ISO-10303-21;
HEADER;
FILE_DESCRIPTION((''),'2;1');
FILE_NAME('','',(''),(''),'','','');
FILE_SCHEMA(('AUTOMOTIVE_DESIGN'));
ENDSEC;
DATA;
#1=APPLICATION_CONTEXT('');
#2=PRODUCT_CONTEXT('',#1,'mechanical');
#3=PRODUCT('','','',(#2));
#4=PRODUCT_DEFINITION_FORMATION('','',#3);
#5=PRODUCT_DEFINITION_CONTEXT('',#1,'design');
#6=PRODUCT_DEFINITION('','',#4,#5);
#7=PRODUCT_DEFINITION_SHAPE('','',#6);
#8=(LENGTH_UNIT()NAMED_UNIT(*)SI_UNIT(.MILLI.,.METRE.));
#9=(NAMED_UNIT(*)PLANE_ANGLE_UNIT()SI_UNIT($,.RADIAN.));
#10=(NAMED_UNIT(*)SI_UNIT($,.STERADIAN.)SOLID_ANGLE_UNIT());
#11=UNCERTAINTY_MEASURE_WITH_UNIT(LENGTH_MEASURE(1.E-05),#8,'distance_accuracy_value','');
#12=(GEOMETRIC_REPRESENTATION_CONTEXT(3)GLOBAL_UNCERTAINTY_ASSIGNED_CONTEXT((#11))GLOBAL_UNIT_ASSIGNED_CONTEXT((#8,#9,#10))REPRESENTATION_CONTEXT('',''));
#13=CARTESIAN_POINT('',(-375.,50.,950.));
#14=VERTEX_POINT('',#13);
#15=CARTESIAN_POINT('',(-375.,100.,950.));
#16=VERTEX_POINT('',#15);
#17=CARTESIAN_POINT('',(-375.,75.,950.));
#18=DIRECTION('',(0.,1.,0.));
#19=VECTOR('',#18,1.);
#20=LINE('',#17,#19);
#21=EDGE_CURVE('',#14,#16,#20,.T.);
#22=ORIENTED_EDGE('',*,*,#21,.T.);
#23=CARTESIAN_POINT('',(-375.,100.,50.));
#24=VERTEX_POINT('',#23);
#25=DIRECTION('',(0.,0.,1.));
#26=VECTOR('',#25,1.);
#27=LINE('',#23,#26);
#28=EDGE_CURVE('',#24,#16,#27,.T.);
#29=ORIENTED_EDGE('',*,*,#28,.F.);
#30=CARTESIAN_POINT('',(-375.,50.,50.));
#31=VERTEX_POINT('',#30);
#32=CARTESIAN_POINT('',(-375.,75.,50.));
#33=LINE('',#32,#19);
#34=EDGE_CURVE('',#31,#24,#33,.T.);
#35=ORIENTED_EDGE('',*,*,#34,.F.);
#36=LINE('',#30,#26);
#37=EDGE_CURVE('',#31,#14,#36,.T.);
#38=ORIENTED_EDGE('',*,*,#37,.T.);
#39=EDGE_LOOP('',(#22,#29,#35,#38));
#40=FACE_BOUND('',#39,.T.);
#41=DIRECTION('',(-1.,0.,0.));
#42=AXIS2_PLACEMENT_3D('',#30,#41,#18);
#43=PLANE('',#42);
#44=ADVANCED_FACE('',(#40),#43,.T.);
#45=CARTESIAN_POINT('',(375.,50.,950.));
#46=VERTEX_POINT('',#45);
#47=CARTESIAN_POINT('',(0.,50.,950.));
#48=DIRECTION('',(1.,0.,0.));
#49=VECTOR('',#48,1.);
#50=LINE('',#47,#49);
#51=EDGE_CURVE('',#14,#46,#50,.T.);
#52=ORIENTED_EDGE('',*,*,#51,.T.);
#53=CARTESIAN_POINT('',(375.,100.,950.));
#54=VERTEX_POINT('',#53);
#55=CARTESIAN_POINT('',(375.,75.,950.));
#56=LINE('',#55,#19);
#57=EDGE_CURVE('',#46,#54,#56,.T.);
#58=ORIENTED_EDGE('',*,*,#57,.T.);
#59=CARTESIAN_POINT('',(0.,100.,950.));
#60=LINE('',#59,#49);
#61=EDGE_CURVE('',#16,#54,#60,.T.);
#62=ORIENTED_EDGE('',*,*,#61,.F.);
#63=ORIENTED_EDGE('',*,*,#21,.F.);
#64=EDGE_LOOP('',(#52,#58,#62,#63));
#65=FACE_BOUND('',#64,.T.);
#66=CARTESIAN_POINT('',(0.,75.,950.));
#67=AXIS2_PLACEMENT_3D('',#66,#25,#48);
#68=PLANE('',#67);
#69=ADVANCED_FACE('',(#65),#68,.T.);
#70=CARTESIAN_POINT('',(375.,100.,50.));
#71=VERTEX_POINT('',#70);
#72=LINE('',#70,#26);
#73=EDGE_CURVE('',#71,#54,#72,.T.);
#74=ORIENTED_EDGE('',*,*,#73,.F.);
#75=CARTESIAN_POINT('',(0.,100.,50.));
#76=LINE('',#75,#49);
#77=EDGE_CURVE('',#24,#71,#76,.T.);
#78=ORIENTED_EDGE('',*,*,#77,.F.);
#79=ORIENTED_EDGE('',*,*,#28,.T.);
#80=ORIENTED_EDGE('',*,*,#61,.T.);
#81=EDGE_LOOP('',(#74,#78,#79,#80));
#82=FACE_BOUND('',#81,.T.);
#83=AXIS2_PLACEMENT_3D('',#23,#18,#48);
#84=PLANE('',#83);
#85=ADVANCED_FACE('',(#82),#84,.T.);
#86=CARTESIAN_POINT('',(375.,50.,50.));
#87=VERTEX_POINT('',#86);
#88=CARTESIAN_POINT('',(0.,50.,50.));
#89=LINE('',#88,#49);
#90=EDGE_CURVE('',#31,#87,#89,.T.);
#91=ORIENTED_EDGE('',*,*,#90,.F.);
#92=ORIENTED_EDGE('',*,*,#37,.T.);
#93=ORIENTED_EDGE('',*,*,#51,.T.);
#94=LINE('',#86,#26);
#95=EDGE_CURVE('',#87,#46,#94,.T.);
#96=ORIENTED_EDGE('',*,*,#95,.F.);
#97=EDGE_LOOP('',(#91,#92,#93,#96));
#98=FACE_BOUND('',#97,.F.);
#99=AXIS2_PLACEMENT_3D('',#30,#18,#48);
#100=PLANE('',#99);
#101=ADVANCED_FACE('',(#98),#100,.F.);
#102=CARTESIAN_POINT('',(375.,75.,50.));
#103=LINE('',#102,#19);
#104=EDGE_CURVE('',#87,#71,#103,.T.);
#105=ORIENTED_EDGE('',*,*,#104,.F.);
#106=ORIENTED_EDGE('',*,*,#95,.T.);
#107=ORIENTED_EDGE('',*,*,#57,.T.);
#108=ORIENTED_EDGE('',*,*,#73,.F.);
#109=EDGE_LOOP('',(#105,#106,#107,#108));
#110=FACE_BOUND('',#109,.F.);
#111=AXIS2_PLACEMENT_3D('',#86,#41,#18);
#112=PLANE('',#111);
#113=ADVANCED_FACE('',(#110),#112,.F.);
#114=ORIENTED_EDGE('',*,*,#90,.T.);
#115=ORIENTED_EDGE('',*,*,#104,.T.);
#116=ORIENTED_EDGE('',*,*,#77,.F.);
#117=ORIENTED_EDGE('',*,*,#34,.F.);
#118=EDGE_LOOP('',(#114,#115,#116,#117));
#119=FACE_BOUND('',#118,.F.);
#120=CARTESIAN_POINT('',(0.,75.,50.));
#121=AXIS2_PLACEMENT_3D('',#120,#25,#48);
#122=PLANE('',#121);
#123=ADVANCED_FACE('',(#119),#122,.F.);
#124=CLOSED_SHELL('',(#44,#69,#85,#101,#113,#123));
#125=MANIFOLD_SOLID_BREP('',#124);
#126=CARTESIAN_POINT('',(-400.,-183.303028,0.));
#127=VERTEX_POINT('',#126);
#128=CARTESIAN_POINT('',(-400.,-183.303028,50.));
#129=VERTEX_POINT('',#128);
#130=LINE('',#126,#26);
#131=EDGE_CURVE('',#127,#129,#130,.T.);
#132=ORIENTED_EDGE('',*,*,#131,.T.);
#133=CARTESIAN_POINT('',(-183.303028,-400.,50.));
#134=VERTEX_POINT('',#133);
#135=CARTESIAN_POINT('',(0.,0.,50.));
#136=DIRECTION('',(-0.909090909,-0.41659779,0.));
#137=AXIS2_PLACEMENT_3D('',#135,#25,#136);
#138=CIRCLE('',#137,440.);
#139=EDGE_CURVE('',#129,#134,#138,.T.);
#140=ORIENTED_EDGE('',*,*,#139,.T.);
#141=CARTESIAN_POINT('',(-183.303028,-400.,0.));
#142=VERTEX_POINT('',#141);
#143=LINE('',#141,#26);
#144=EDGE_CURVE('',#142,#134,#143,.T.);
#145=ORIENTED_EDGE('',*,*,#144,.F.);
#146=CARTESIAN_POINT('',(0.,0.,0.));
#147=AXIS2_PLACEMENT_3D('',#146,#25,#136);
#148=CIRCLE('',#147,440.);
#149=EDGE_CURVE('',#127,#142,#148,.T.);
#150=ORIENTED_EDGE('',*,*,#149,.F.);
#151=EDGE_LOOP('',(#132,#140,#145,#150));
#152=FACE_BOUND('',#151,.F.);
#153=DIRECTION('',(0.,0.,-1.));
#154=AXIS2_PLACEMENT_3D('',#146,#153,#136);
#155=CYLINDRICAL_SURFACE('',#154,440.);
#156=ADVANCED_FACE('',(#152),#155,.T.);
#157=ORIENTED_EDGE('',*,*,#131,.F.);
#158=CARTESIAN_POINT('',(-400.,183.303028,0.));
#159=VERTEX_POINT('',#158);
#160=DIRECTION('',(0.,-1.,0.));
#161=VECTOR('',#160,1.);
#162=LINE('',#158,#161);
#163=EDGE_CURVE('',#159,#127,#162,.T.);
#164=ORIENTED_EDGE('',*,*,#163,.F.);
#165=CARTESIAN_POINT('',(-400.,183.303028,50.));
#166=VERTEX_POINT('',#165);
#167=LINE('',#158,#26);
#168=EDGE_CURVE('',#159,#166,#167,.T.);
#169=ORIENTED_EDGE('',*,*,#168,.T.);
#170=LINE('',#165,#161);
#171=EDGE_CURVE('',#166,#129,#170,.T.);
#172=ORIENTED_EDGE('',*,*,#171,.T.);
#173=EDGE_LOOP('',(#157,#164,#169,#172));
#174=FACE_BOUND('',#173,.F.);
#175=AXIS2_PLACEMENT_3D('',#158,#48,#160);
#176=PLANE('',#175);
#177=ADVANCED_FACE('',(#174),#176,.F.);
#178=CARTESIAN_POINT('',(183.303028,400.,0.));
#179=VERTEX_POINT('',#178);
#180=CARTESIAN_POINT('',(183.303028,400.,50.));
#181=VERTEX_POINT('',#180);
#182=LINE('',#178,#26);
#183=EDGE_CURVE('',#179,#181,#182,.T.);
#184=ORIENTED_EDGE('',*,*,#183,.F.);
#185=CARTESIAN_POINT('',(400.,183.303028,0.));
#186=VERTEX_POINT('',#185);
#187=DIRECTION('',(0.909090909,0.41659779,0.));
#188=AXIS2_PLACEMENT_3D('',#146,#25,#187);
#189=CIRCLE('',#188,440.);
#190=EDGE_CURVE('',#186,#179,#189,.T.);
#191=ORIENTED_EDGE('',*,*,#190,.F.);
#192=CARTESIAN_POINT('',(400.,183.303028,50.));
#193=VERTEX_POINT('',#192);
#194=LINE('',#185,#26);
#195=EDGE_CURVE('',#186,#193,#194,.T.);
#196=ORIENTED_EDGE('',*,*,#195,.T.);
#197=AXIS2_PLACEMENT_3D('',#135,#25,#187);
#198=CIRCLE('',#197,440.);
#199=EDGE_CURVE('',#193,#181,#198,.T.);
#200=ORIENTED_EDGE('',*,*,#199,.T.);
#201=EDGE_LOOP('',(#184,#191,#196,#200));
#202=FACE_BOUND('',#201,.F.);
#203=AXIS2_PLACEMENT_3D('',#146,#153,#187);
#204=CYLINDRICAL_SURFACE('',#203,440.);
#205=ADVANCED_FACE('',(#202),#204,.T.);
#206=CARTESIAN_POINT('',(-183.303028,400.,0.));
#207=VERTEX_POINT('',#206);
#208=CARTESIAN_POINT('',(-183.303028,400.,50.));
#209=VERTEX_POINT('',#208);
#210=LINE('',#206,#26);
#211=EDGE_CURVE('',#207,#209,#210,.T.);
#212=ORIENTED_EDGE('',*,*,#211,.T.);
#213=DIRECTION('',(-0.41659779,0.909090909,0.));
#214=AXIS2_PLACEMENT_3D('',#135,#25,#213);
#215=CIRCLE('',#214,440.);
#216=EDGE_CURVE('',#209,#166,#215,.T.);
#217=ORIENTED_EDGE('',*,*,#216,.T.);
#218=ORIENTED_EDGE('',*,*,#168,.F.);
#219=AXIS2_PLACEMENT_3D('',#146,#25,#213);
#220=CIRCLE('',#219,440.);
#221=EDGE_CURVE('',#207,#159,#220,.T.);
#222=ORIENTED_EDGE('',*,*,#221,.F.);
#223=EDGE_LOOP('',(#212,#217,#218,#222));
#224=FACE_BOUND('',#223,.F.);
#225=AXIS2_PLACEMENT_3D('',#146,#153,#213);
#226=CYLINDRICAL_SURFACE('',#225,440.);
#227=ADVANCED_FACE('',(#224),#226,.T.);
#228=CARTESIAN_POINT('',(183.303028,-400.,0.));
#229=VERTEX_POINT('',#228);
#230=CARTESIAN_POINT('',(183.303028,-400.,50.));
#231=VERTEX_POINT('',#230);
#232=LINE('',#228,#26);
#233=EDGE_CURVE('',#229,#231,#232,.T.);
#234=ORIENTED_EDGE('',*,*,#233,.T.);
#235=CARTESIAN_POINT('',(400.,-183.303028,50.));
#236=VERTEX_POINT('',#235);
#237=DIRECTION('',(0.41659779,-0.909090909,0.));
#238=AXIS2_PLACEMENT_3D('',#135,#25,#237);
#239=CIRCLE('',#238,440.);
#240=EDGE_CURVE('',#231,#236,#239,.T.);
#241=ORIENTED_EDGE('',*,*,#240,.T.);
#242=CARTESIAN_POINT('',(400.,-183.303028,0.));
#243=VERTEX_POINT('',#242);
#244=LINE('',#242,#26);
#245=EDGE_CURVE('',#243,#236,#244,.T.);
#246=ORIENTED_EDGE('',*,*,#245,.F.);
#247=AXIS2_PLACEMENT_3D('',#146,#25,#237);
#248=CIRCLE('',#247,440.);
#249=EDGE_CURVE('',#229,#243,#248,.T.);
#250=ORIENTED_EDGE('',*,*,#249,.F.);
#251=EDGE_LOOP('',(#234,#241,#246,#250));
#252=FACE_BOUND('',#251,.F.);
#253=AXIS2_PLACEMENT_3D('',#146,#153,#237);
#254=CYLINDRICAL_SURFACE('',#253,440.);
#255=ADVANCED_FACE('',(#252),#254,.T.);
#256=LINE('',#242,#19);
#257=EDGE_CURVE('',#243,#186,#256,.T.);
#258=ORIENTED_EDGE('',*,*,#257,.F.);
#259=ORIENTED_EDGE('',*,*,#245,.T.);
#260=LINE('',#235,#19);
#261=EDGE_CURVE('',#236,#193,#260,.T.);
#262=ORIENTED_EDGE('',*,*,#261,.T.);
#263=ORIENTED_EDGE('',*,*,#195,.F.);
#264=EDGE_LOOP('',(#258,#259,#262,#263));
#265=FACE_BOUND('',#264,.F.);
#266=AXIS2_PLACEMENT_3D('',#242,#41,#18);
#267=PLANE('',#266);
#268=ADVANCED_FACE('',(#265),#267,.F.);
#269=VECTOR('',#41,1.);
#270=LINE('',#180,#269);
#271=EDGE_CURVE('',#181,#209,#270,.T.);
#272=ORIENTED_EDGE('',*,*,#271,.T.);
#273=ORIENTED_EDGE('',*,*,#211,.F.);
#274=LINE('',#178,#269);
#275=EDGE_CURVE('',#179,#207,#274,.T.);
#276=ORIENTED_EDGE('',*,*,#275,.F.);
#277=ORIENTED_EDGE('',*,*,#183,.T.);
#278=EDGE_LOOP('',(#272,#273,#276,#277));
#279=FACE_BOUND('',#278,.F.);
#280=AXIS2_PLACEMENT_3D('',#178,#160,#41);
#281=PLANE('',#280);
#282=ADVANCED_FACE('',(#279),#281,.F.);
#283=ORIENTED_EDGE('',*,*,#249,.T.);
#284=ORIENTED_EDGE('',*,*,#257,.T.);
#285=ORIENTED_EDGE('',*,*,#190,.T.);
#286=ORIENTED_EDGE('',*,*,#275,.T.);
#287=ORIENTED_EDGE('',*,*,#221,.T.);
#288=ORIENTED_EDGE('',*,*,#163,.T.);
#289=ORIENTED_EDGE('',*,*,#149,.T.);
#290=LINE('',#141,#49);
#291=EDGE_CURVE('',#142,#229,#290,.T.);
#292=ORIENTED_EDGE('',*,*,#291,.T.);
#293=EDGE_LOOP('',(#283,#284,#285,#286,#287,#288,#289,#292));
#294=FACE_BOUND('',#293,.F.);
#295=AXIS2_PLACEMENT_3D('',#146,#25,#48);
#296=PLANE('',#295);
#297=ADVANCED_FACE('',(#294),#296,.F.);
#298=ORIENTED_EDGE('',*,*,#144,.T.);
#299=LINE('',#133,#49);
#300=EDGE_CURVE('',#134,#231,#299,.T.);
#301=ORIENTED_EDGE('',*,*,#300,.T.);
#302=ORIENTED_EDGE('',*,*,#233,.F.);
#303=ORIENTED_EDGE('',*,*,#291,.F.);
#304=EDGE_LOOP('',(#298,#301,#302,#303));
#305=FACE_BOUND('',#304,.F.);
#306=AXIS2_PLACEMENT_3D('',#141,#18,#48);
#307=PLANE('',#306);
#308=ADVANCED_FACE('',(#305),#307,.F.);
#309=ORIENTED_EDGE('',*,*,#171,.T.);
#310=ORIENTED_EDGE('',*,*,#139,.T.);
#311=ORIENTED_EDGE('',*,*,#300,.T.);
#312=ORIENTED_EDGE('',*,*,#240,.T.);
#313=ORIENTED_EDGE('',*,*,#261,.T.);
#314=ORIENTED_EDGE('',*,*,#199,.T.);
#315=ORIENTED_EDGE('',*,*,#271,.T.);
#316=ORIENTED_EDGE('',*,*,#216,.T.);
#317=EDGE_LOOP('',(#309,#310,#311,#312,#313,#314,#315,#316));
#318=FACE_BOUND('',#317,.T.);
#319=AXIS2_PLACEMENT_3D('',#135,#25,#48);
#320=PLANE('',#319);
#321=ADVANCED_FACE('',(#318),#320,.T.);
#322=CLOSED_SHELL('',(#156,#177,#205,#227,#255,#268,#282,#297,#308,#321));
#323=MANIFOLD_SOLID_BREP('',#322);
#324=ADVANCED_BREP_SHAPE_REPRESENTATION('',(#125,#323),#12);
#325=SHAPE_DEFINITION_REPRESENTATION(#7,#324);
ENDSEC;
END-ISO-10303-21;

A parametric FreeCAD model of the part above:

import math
import FreeCAD as App
import Part
import Sketcher
from FreeCAD import Vector
Q = App.Units.Quantity

doc = App.newDocument("Part")
body = doc.addObject("PartDesign::Body", "Body")

# Sketch on XY plane
sketch1 = body.newObject("Sketcher::SketchObject", "Sketch")
sketch1.AttachmentSupport = (doc.getObject("XY_Plane"), [""])
sketch1.MapMode = "FlatFace"
sketch1.addGeometry(Part.ArcOfCircle(Part.Circle(Vector(0, 0, 0), Vector(0, 0, 1), 440), math.radians(25), math.radians(65)), False)
sketch1.addGeometry(Part.LineSegment(Vector(183, 400, 0), Vector(-183, 400, 0)), False)
sketch1.addGeometry(Part.ArcOfCircle(Part.Circle(Vector(0, 0, 0), Vector(0, 0, 1), 440), math.radians(115), math.radians(155)), False)
sketch1.addGeometry(Part.LineSegment(Vector(-400, 183, 0), Vector(-400, -183, 0)), False)
sketch1.addGeometry(Part.ArcOfCircle(Part.Circle(Vector(0, 0, 0), Vector(0, 0, 1), 440), math.radians(-155), math.radians(-115)), False)
sketch1.addGeometry(Part.LineSegment(Vector(-183, -400, 0), Vector(183, -400, 0)), False)
sketch1.addGeometry(Part.ArcOfCircle(Part.Circle(Vector(0, 0, 0), Vector(0, 0, 1), 440), math.radians(-65), math.radians(-25)), False)
sketch1.addGeometry(Part.LineSegment(Vector(400, -183, 0), Vector(400, 183, 0)), False)
sketch1.addConstraint(Sketcher.Constraint("Coincident", 0, 2, 1, 1))
sketch1.addConstraint(Sketcher.Constraint("Coincident", 1, 2, 2, 1))
sketch1.addConstraint(Sketcher.Constraint("Coincident", 2, 2, 3, 1))
sketch1.addConstraint(Sketcher.Constraint("Coincident", 3, 2, 4, 1))
sketch1.addConstraint(Sketcher.Constraint("Coincident", 4, 2, 5, 1))
sketch1.addConstraint(Sketcher.Constraint("Coincident", 5, 2, 6, 1))
sketch1.addConstraint(Sketcher.Constraint("Coincident", 6, 2, 7, 1))
sketch1.addConstraint(Sketcher.Constraint("Coincident", 7, 2, 0, 1))
sketch1.addConstraint(Sketcher.Constraint("Horizontal", 1))
sketch1.addConstraint(Sketcher.Constraint("Vertical", 3))
sketch1.addConstraint(Sketcher.Constraint("Horizontal", 5))
sketch1.addConstraint(Sketcher.Constraint("Vertical", 7))
sketch1.addConstraint(Sketcher.Constraint("Coincident", 0, 3, -1, 1))
sketch1.addConstraint(Sketcher.Constraint("Coincident", 2, 3, -1, 1))
sketch1.addConstraint(Sketcher.Constraint("Coincident", 4, 3, -1, 1))
sketch1.addConstraint(Sketcher.Constraint("Coincident", 6, 3, -1, 1))
sketch1.addConstraint(Sketcher.Constraint("Equal", 0, 2))
sketch1.addConstraint(Sketcher.Constraint("Equal", 2, 4))
sketch1.addConstraint(Sketcher.Constraint("Equal", 4, 6))
sketch1.addConstraint(Sketcher.Constraint("Horizontal", 3, 2, 6, 2))
sketch1.addConstraint(Sketcher.Constraint("Vertical", 1, 2, 4, 2))
sketch1.addConstraint(Sketcher.Constraint("Equal", 5, 3))
sketch1.addConstraint(Sketcher.Constraint("Radius", 0, Q("440 mm")))
sketch1.addConstraint(Sketcher.Constraint("DistanceY", -1, 1, 1, 2, Q("400 mm")))
pad1 = body.newObject("PartDesign::Pad", "Pad")
pad1.Profile = sketch1
pad1.Length = 50
body2 = doc.addObject("PartDesign::Body", "Body001")

# Sketch on XY plane
sketch2 = body2.newObject("Sketcher::SketchObject", "Sketch001")
sketch2.AttachmentSupport = (doc.getObject("XY_Plane001"), [""])
sketch2.MapMode = "FlatFace"
sketch2.AttachmentOffset = App.Placement(Vector(0, 0, 50), App.Rotation())
sketch2.addGeometry(Part.LineSegment(Vector(-375, 100, 0), Vector(-375, 50, 0)), False)
sketch2.addGeometry(Part.LineSegment(Vector(-375, 50, 0), Vector(375, 50, 0)), False)
sketch2.addGeometry(Part.LineSegment(Vector(375, 50, 0), Vector(375, 100, 0)), False)
sketch2.addGeometry(Part.LineSegment(Vector(375, 100, 0), Vector(-375, 100, 0)), False)
sketch2.addConstraint(Sketcher.Constraint("Coincident", 0, 2, 1, 1))
sketch2.addConstraint(Sketcher.Constraint("Coincident", 1, 2, 2, 1))
sketch2.addConstraint(Sketcher.Constraint("Coincident", 2, 2, 3, 1))
sketch2.addConstraint(Sketcher.Constraint("Coincident", 3, 2, 0, 1))
sketch2.addConstraint(Sketcher.Constraint("Vertical", 0))
sketch2.addConstraint(Sketcher.Constraint("Horizontal", 1))
sketch2.addConstraint(Sketcher.Constraint("Vertical", 2))
sketch2.addConstraint(Sketcher.Constraint("Horizontal", 3))
sketch2.addConstraint(Sketcher.Constraint("DistanceX", 1, 1, 1, 2, Q("750 mm")))
sketch2.addConstraint(Sketcher.Constraint("DistanceY", 0, 2, 0, 1, Q("50 mm")))
sketch2.addConstraint(Sketcher.Constraint("DistanceX", 0, 2, -1, 1, Q("375 mm")))
sketch2.addConstraint(Sketcher.Constraint("DistanceY", -1, 1, 0, 2, Q("50 mm")))
pad2 = body2.newObject("PartDesign::Pad", "Pad001")
pad2.Profile = sketch2
pad2.Length = 900

doc.recompute()
